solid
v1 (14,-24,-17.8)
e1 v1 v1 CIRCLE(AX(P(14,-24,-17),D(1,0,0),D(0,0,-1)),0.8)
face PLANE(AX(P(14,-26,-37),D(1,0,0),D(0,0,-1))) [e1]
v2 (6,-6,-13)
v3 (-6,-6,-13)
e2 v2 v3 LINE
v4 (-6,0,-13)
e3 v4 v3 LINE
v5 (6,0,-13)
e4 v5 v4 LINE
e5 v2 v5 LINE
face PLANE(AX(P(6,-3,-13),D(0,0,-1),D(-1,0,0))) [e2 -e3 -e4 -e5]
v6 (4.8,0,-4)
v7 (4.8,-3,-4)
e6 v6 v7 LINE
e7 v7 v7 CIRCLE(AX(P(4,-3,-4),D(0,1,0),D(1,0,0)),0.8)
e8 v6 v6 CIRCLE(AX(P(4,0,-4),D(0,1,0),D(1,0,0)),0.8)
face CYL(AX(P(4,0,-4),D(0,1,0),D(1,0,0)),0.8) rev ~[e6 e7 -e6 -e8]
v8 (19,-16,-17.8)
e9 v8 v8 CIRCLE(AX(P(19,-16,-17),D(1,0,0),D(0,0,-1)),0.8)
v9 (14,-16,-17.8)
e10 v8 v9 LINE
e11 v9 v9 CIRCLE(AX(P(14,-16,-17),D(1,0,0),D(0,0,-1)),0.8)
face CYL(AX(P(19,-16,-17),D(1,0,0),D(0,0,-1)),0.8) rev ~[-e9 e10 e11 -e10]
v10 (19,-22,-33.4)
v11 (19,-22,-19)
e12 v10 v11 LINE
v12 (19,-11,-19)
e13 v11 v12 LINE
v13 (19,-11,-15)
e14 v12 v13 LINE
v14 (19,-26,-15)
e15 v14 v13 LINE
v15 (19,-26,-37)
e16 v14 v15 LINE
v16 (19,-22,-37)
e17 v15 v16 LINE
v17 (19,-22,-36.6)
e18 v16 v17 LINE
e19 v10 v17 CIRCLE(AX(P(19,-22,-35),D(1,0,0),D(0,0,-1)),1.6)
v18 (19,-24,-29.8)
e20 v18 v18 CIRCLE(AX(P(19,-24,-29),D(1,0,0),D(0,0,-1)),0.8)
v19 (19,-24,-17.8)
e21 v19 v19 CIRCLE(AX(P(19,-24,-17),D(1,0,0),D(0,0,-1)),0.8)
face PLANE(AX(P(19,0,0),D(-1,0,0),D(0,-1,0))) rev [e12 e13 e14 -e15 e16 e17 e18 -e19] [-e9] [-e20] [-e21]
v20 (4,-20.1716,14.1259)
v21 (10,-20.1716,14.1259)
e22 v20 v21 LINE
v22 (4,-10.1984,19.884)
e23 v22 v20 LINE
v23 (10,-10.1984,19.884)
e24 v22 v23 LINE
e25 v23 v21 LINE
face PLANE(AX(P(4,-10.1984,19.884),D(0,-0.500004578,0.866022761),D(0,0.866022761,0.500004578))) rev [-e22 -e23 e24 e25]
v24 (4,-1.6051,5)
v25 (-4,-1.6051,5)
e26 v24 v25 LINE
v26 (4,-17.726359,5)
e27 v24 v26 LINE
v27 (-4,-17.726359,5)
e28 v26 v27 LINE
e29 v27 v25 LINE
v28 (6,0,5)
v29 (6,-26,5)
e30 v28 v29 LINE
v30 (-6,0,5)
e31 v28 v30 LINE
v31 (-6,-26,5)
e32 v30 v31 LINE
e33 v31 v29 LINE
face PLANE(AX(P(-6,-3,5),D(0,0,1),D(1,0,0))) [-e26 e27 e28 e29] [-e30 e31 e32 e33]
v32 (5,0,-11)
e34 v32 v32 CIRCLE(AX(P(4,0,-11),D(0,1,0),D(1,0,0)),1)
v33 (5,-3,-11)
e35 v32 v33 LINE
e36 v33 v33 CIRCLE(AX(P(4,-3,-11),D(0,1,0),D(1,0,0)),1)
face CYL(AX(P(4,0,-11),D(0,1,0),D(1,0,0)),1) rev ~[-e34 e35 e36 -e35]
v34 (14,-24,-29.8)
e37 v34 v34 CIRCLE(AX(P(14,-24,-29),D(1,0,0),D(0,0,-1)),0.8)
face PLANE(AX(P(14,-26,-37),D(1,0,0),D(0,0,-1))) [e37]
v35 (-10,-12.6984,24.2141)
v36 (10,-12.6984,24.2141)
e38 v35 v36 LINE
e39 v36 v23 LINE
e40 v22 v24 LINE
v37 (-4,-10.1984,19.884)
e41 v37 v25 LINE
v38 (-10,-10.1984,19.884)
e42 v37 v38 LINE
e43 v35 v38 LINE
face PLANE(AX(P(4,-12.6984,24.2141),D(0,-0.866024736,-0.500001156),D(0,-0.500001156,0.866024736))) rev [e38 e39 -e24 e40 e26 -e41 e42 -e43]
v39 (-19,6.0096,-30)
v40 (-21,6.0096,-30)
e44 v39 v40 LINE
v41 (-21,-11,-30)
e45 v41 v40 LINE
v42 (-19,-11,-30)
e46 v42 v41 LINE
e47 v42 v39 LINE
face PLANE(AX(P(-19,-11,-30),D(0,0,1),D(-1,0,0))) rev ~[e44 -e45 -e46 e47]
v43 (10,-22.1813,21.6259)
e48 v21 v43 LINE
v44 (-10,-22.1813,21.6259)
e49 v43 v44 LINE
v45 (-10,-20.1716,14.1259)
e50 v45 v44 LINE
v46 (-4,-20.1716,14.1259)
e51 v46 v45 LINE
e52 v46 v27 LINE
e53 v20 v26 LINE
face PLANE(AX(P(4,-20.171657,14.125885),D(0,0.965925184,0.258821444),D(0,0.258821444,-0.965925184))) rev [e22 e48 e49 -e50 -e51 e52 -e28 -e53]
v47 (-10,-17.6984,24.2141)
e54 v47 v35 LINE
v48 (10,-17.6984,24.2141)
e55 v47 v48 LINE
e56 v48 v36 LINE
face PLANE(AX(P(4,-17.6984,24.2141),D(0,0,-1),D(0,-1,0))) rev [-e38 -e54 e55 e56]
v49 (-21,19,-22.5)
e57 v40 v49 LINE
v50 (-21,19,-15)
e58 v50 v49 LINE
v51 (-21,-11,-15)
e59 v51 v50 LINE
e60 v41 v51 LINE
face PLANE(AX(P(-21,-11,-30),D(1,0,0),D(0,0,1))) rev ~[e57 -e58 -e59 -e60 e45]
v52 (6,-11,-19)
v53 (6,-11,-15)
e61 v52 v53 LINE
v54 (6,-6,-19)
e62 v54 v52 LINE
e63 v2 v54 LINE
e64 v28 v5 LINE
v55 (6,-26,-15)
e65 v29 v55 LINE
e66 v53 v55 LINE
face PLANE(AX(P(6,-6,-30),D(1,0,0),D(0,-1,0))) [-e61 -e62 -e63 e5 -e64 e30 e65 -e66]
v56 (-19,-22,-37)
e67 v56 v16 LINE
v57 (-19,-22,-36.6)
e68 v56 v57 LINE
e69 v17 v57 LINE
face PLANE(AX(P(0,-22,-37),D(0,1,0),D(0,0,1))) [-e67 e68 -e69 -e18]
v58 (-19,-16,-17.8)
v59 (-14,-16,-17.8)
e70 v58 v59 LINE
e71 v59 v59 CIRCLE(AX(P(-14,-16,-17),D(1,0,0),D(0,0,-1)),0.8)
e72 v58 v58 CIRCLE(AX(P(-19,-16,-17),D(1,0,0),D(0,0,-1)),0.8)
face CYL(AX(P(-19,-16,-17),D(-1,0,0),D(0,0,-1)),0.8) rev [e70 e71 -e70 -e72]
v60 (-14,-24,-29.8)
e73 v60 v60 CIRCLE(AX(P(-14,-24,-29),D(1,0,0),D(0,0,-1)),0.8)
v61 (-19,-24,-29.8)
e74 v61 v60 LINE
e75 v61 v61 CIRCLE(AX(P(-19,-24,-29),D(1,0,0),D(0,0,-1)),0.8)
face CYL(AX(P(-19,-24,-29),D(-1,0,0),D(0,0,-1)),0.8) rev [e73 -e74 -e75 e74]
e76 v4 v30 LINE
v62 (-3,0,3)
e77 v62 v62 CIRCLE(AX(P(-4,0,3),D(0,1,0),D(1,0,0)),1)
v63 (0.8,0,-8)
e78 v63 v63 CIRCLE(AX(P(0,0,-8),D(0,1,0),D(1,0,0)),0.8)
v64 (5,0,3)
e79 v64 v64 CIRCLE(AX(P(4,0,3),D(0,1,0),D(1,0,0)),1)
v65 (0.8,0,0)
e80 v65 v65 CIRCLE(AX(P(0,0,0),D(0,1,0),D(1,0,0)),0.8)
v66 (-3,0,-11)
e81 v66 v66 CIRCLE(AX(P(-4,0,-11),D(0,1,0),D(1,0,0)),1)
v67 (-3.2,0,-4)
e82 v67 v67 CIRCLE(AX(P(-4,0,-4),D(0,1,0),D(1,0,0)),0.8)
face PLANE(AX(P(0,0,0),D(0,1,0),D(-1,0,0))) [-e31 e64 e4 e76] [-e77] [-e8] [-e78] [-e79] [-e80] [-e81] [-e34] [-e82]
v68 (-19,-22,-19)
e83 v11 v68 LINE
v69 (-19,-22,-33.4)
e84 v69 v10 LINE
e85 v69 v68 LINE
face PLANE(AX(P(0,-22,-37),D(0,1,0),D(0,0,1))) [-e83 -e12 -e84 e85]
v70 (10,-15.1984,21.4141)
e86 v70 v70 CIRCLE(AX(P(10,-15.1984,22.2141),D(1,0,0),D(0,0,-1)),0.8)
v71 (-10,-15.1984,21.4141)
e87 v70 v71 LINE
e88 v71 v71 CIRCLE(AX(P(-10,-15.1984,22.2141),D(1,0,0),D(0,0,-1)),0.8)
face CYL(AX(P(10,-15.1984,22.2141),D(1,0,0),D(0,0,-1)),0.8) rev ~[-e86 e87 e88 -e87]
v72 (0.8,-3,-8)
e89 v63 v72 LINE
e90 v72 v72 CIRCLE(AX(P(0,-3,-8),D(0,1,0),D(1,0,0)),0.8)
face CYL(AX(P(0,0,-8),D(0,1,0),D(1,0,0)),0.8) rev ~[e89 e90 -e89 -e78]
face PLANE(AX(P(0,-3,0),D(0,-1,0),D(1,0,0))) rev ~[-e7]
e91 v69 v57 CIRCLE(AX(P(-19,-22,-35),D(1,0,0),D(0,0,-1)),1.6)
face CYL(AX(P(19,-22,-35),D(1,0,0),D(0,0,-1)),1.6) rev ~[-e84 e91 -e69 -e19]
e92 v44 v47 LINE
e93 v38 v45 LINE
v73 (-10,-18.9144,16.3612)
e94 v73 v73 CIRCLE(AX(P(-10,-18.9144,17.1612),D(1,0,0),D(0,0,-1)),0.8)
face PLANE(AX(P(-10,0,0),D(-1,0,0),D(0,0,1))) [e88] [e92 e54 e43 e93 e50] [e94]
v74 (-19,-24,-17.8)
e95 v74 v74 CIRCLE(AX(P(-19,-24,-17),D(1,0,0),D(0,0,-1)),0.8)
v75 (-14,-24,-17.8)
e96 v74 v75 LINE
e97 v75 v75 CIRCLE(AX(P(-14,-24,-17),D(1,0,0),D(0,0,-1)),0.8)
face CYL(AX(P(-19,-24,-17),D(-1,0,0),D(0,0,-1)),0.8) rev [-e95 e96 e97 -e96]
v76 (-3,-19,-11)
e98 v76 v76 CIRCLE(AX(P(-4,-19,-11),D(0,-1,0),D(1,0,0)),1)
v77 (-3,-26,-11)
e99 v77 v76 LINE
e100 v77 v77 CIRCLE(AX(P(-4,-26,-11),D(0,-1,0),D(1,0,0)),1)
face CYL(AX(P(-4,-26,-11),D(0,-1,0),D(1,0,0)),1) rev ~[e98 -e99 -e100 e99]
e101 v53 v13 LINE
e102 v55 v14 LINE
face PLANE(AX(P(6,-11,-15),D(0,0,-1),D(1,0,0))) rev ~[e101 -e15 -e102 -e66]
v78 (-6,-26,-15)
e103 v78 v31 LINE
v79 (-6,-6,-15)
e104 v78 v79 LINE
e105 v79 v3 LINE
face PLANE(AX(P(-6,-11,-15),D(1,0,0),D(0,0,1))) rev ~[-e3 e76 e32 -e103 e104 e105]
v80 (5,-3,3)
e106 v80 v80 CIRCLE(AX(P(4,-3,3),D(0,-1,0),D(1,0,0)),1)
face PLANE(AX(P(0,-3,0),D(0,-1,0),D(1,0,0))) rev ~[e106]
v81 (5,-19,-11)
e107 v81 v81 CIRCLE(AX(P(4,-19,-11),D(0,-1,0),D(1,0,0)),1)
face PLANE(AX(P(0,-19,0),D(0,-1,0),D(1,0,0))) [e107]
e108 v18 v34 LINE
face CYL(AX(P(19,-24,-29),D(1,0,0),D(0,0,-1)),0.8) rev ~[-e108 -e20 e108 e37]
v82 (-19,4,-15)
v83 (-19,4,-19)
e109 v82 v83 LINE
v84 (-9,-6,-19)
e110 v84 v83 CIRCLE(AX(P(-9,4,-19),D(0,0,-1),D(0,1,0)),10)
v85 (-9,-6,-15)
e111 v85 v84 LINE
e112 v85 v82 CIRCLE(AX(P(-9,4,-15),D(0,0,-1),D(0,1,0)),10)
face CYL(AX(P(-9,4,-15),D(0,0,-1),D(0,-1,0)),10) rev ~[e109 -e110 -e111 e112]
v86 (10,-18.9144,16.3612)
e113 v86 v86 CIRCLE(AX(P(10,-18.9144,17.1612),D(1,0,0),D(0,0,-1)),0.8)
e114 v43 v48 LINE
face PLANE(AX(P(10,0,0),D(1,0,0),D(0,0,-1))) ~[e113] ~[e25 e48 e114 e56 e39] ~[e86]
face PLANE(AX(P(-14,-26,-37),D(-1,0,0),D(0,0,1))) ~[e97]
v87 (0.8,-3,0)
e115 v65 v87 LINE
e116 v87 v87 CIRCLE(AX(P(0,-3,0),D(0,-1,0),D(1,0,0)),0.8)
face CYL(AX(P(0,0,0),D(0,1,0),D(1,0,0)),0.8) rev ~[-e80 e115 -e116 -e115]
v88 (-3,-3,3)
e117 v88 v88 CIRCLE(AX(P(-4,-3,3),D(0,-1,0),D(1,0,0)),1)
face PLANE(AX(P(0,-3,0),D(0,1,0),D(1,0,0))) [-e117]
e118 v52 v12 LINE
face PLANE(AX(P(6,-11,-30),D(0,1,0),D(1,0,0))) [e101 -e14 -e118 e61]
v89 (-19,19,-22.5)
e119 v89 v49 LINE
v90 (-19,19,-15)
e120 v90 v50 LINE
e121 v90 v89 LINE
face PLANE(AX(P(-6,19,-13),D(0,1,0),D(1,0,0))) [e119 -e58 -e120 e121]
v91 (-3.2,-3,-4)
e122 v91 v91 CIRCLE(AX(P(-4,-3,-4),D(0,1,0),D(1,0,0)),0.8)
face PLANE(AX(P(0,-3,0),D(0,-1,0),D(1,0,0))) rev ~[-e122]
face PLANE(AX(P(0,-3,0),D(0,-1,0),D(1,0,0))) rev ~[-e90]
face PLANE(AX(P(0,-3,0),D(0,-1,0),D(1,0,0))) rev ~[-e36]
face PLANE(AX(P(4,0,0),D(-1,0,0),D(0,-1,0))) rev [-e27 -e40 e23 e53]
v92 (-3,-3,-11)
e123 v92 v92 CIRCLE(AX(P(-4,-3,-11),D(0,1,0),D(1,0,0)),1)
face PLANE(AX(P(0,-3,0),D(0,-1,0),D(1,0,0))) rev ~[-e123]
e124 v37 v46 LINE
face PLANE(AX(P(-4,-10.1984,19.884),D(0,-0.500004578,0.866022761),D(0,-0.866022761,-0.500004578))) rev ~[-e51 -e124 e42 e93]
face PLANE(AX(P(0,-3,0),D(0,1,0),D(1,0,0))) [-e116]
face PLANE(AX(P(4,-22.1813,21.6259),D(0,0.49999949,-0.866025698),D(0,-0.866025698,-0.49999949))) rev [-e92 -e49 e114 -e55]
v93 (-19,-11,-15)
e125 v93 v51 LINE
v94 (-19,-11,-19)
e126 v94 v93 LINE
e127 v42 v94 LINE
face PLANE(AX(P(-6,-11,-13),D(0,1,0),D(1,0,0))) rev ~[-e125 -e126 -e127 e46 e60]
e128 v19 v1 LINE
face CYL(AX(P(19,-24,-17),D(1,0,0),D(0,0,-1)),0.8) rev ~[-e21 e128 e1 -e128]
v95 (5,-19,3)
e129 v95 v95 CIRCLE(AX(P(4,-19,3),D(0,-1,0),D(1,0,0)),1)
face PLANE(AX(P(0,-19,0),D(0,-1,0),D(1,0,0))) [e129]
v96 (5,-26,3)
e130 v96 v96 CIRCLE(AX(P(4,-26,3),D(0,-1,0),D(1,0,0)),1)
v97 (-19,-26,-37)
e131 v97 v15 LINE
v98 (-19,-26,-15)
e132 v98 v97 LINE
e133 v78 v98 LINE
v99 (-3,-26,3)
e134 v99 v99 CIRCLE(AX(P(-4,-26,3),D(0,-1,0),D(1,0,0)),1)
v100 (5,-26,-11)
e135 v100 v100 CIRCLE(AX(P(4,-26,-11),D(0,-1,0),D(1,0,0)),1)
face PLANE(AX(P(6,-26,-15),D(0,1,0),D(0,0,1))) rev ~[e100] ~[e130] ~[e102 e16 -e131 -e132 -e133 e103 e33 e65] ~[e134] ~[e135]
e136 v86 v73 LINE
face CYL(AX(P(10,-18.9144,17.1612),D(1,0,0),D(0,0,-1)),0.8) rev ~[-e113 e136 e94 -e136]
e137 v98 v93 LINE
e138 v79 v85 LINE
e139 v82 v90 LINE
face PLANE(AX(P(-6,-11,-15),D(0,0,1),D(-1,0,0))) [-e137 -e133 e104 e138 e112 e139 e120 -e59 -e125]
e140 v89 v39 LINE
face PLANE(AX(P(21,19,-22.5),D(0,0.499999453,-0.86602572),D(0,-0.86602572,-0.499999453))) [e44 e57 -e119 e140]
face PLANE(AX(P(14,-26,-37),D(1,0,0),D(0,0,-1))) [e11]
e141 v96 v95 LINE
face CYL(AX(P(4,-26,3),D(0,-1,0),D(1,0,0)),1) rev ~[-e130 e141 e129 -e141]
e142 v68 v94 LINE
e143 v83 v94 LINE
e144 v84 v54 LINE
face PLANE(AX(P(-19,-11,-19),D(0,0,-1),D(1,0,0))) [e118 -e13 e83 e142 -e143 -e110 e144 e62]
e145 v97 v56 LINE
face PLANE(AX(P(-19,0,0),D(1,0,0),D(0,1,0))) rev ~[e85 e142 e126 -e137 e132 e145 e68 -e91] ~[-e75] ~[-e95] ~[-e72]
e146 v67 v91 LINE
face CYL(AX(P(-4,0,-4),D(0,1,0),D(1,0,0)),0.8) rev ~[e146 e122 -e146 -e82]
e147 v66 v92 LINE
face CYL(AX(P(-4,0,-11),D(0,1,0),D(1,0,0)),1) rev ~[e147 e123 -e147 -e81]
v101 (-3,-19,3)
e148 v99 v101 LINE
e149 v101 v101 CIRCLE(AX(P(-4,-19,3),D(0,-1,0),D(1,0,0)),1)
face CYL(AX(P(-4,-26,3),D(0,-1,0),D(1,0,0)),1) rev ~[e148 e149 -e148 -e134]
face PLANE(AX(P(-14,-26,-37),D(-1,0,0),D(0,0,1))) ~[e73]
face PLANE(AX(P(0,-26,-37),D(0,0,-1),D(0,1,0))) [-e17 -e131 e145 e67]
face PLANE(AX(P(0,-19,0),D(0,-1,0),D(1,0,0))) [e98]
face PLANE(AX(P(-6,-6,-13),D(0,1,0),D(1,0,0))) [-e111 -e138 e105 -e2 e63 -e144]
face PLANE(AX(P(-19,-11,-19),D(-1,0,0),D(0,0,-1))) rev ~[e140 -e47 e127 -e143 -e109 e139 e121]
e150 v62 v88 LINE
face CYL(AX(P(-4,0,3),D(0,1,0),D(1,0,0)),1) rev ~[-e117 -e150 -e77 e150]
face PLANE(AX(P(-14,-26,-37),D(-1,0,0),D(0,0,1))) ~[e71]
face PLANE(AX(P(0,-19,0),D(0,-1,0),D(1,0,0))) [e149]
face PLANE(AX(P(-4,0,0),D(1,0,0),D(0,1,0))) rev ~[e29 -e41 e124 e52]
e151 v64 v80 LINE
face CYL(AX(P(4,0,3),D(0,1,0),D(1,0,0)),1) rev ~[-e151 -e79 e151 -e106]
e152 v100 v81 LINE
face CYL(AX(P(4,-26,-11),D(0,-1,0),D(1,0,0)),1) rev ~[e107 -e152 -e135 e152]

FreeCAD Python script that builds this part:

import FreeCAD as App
import Part
import Sketcher
from FreeCAD import Vector
Q = App.Units.Quantity


def edges_at(feature, points):
    """Names of the edges that pass closest to the given points."""
    edges = feature.Shape.Edges
    near = lambda p: min(range(len(edges)), key=lambda i: edges[i].distToShape(Part.Vertex(*p))[0])
    return sorted({f"Edge{near(p) + 1}" for p in points})


def add_polygon(sketch, points):
    """Adds a closed chain of lines whose ends are joined by coincident constraints."""
    first, n = sketch.GeometryCount, len(points)
    for a, b in zip(points, points[1:] + points[:1]):
        sketch.addGeometry(Part.LineSegment(App.Vector(*a, 0), App.Vector(*b, 0)), False)
    for i in range(n):
        sketch.addConstraint(Sketcher.Constraint("Coincident", first + i, 2, first + (i + 1) % n, 1))

doc = App.newDocument("Part")
body = doc.addObject("PartDesign::Body", "Body")
body.AllowCompound = True

sketch1 = body.newObject("Sketcher::SketchObject", "Sketch")
sketch1.AttachmentSupport = (doc.getObject("XZ_Plane"), [""])
sketch1.MapMode = "FlatFace"
add_polygon(sketch1, [(6, 5), (6, -13), (-6, -13), (-6, 5)])
sketch1.addConstraint(Sketcher.Constraint("Vertical", 0))
sketch1.addConstraint(Sketcher.Constraint("Horizontal", 1))
sketch1.addConstraint(Sketcher.Constraint("Vertical", 2))
sketch1.addConstraint(Sketcher.Constraint("Horizontal", 3))
sketch1.addConstraint(Sketcher.Constraint("DistanceX", 1, 2, 1, 1, Q("12 mm")))
sketch1.addConstraint(Sketcher.Constraint("DistanceY", 0, 2, 0, 1, Q("18 mm")))
sketch1.addConstraint(Sketcher.Constraint("DistanceX", -1, 1, 0, 2, Q("6 mm")))
sketch1.addConstraint(Sketcher.Constraint("DistanceY", 0, 2, -1, 1, Q("13 mm")))
pad1 = body.newObject("PartDesign::Pad", "Pad")
pad1.Profile = sketch1
pad1.Length = 3

sketch2 = body.newObject("Sketcher::SketchObject", "Sketch001")
sketch2.AttachmentSupport = (doc.getObject("YZ_Plane"), [""])
sketch2.MapMode = "FlatFace"
add_polygon(sketch2, [(-3, 0), (-3, 5), (-1.6051, 5), (-12.6984, 24.2141), (-17.6984, 24.2141), (-22.1813, 21.6259), (-16.3866, 0)])
sketch2.addConstraint(Sketcher.Constraint("Vertical", 0))
sketch2.addConstraint(Sketcher.Constraint("Horizontal", 1))
sketch2.addConstraint(Sketcher.Constraint("Horizontal", 3))
sketch2.addConstraint(Sketcher.Constraint("Horizontal", 6))
sketch2.addConstraint(Sketcher.Constraint("PointOnObject", 5, 2, -1))
sketch2.addConstraint(Sketcher.Constraint("Perpendicular", 2, 4))
sketch2.addConstraint(Sketcher.Constraint("Equal", 3, 0))
sketch2.addConstraint(Sketcher.Constraint("DistanceX", 3, 2, 3, 1, Q("5 mm")))
sketch2.addConstraint(Sketcher.Constraint("Angle", 2, Q("120 deg")))
sketch2.addConstraint(Sketcher.Constraint("Angle", 5, Q("-74.9999 deg")))
sketch2.addConstraint(Sketcher.Constraint("DistanceX", 0, 2, -1, 1, Q("3 mm")))
sketch2.addConstraint(Sketcher.Constraint("DistanceX", 1, 1, 1, 2, Q("1.395 mm")))
sketch2.addConstraint(Sketcher.Constraint("DistanceX", 6, 1, 6, 2, Q("13.3866 mm")))
sketch2.addConstraint(Sketcher.Constraint("DistanceY", -1, 1, 2, 2, Q("24.214 mm")))
pad2 = body.newObject("PartDesign::Pad", "Pad001")
pad2.Profile = sketch2
pad2.Length = 4
pad2.Reversed = True

sketch3 = body.newObject("Sketcher::SketchObject", "Sketch002")
sketch3.AttachmentSupport = (doc.getObject("YZ_Plane"), [""])
sketch3.MapMode = "FlatFace"
sketch3.AttachmentOffset = App.Placement(Vector(0, 0, -4), App.Rotation())
add_polygon(sketch3, [(-10.1984, 19.884), (-20.171657, 14.125885), (-22.1813, 21.6259), (-17.6984, 24.2141), (-12.6984, 24.2141)])
sketch3.addConstraint(Sketcher.Constraint("Horizontal", 3))
sketch3.addConstraint(Sketcher.Constraint("Parallel", 0, 2))
sketch3.addConstraint(Sketcher.Constraint("Perpendicular", 2, 4))
sketch3.addConstraint(Sketcher.Constraint("DistanceX", 3, 1, 3, 2, Q("5 mm")))
sketch3.addConstraint(Sketcher.Constraint("Distance", 4, Q("5 mm")))
sketch3.addConstraint(Sketcher.Constraint("Angle", 0, Q("-149.9997 deg")))
sketch3.addConstraint(Sketcher.Constraint("Angle", 1, Q("105.0001 deg")))
sketch3.addConstraint(Sketcher.Constraint("Distance", 0, Q("11.516 mm")))
sketch3.addConstraint(Sketcher.Constraint("DistanceY", -1, 1, 0, 2, Q("14.126 mm")))
sketch3.addConstraint(Sketcher.Constraint("DistanceX", 0, 2, -1, 1, Q("20.1716 mm")))
pad3 = body.newObject("PartDesign::Pad", "Pad002")
pad3.Profile = sketch3
pad3.Length = 6
pad3.Reversed = True
doc.recompute()

mirrored = body.newObject("PartDesign::Mirrored", "Mirrored")
mirrored.Originals = [pad2, pad3]
mirrored.MirrorPlane = (doc.getObject("YZ_Plane"), [""])
body.Tip = mirrored

sketch4 = body.newObject("Sketcher::SketchObject", "Sketch003")
sketch4.AttachmentSupport = (doc.getObject("XZ_Plane"), [""])
sketch4.MapMode = "FlatFace"
sketch4.addGeometry(Part.Circle(Vector(4, 3, 0), Vector(0, 0, 1), 1), False)
sketch4.addGeometry(Part.Circle(Vector(-4, -11, 0), Vector(0, 0, 1), 1), False)
sketch4.addGeometry(Part.Circle(Vector(0, 0, 0), Vector(0, 0, 1), 0.8), False)
sketch4.addGeometry(Part.Circle(Vector(0, -8, 0), Vector(0, 0, 1), 0.8), False)
sketch4.addGeometry(Part.Circle(Vector(-4, -4, 0), Vector(0, 0, 1), 0.8), False)
sketch4.addGeometry(Part.Circle(Vector(4, -4, 0), Vector(0, 0, 1), 0.8), False)
sketch4.addGeometry(Part.Circle(Vector(4, -11, 0), Vector(0, 0, 1), 1), False)
sketch4.addGeometry(Part.Circle(Vector(-4, 3, 0), Vector(0, 0, 1), 1), False)
sketch4.addConstraint(Sketcher.Constraint("Coincident", 2, 3, -1, 1))
sketch4.addConstraint(Sketcher.Constraint("Equal", 0, 1))
sketch4.addConstraint(Sketcher.Constraint("Equal", 2, 3))
sketch4.addConstraint(Sketcher.Constraint("Equal", 3, 4))
sketch4.addConstraint(Sketcher.Constraint("Equal", 4, 5))
sketch4.addConstraint(Sketcher.Constraint("Equal", 1, 6))
sketch4.addConstraint(Sketcher.Constraint("Equal", 6, 7))
sketch4.addConstraint(Sketcher.Constraint("Symmetric", 4, 3, 5, 3, -2))
sketch4.addConstraint(Sketcher.Constraint("Symmetric", 1, 3, 6, 3, -2))
sketch4.addConstraint(Sketcher.Constraint("Symmetric", 0, 3, 7, 3, -2))
sketch4.addConstraint(Sketcher.Constraint("PointOnObject", 3, 3, -2))
sketch4.addConstraint(Sketcher.Constraint("Vertical", 1, 3, 4, 3))
sketch4.addConstraint(Sketcher.Constraint("Vertical", 0, 3, 5, 3))
sketch4.addConstraint(Sketcher.Constraint("Diameter", 0, Q("2 mm")))
sketch4.addConstraint(Sketcher.Constraint("Diameter", 2, Q("1.6 mm")))
sketch4.addConstraint(Sketcher.Constraint("DistanceX", -1, 1, 0, 3, Q("4 mm")))
sketch4.addConstraint(Sketcher.Constraint("DistanceY", -1, 1, 0, 3, Q("3 mm")))
sketch4.addConstraint(Sketcher.Constraint("DistanceY", 1, 3, -1, 1, Q("11 mm")))
sketch4.addConstraint(Sketcher.Constraint("DistanceY", 3, 3, -1, 1, Q("8 mm")))
sketch4.addConstraint(Sketcher.Constraint("DistanceY", 4, 3, -1, 1, Q("4 mm")))
pocket1 = body.newObject("PartDesign::Pocket", "Pocket")
pocket1.Profile = sketch4
pocket1.Length = 3
pocket1.Reversed = True

sketch5 = body.newObject("Sketcher::SketchObject", "Sketch004")
sketch5.AttachmentSupport = (doc.getObject("XZ_Plane"), [""])
sketch5.MapMode = "FlatFace"
sketch5.AttachmentOffset = App.Placement(Vector(0, 0, 3), App.Rotation())
add_polygon(sketch5, [(6, 5), (-6, 5), (-6, -13), (6, -13)])
sketch5.addConstraint(Sketcher.Constraint("Horizontal", 0))
sketch5.addConstraint(Sketcher.Constraint("Vertical", 1))
sketch5.addConstraint(Sketcher.Constraint("Horizontal", 2))
sketch5.addConstraint(Sketcher.Constraint("Vertical", 3))
sketch5.addConstraint(Sketcher.Constraint("DistanceX", 0, 2, 0, 1, Q("12 mm")))
sketch5.addConstraint(Sketcher.Constraint("DistanceY", 1, 2, 1, 1, Q("18 mm")))
sketch5.addConstraint(Sketcher.Constraint("DistanceX", 0, 2, -1, 1, Q("6 mm")))
sketch5.addConstraint(Sketcher.Constraint("DistanceY", -1, 1, 0, 2, Q("5 mm")))
pad4 = body.newObject("PartDesign::Pad", "Pad003")
pad4.Profile = sketch5
pad4.Length = 23

sketch6 = body.newObject("Sketcher::SketchObject", "Sketch005")
sketch6.AttachmentSupport = (doc.getObject("XZ_Plane"), [""])
sketch6.MapMode = "FlatFace"
sketch6.AttachmentOffset = App.Placement(Vector(0, 0, 26), App.Rotation())
sketch6.addGeometry(Part.Circle(Vector(-4, 3, 0), Vector(0, 0, 1), 1), False)
sketch6.addGeometry(Part.Circle(Vector(4, 3, 0), Vector(0, 0, 1), 1), False)
sketch6.addGeometry(Part.Circle(Vector(4, -11, 0), Vector(0, 0, 1), 1), False)
sketch6.addGeometry(Part.Circle(Vector(-4, -11, 0), Vector(0, 0, 1), 1), False)
sketch6.addConstraint(Sketcher.Constraint("Equal", 0, 1))
sketch6.addConstraint(Sketcher.Constraint("Equal", 1, 2))
sketch6.addConstraint(Sketcher.Constraint("Equal", 2, 3))
sketch6.addConstraint(Sketcher.Constraint("Symmetric", 0, 3, 1, 3, -2))
sketch6.addConstraint(Sketcher.Constraint("Symmetric", 2, 3, 3, 3, -2))
sketch6.addConstraint(Sketcher.Constraint("Vertical", 1, 3, 2, 3))
sketch6.addConstraint(Sketcher.Constraint("Diameter", 0, Q("2 mm")))
sketch6.addConstraint(Sketcher.Constraint("DistanceX", 0, 3, -1, 1, Q("4 mm")))
sketch6.addConstraint(Sketcher.Constraint("DistanceY", -1, 1, 0, 3, Q("3 mm")))
sketch6.addConstraint(Sketcher.Constraint("DistanceY", 2, 3, -1, 1, Q("11 mm")))
pocket2 = body.newObject("PartDesign::Pocket", "Pocket001")
pocket2.Profile = sketch6
pocket2.Length = 7

sketch7 = body.newObject("Sketcher::SketchObject", "Sketch006")
sketch7.AttachmentSupport = (doc.getObject("YZ_Plane"), [""])
sketch7.MapMode = "FlatFace"
sketch7.AttachmentOffset = App.Placement(Vector(0, 0, 10), App.Rotation())
sketch7.addGeometry(Part.Circle(Vector(-15.1984, 22.2141, 0), Vector(0, 0, 1), 0.8), False)
sketch7.addGeometry(Part.Circle(Vector(-18.9144, 17.1612, 0), Vector(0, 0, 1), 0.8), False)
sketch7.addConstraint(Sketcher.Constraint("Equal", 0, 1))
sketch7.addConstraint(Sketcher.Constraint("Diameter", 0, Q("1.6 mm")))
sketch7.addConstraint(Sketcher.Constraint("DistanceY", -1, 1, 0, 3, Q("22.214 mm")))
sketch7.addConstraint(Sketcher.Constraint("DistanceX", 1, 3, 0, 3, Q("3.716 mm")))
sketch7.addConstraint(Sketcher.Constraint("DistanceY", 1, 3, 0, 3, Q("5.053 mm")))
sketch7.addConstraint(Sketcher.Constraint("DistanceX", 0, 3, -1, 1, Q("15.1984 mm")))
pocket3 = body.newObject("PartDesign::Pocket", "Pocket002")
pocket3.Profile = sketch7
pocket3.Type = "ThroughAll"

sketch8 = body.newObject("Sketcher::SketchObject", "Sketch007")
sketch8.AttachmentSupport = (doc.getObject("YZ_Plane"), [""])
sketch8.MapMode = "FlatFace"
sketch8.AttachmentOffset = App.Placement(Vector(0, 0, 6), App.Rotation())
add_polygon(sketch8, [(-11, -15), (-11, -13), (-26, -13), (-26, -15)])
sketch8.addConstraint(Sketcher.Constraint("Vertical", 0))
sketch8.addConstraint(Sketcher.Constraint("Horizontal", 1))
sketch8.addConstraint(Sketcher.Constraint("Vertical", 2))
sketch8.addConstraint(Sketcher.Constraint("Horizontal", 3))
sketch8.addConstraint(Sketcher.Constraint("DistanceX", 1, 2, 1, 1, Q("15 mm")))
sketch8.addConstraint(Sketcher.Constraint("DistanceY", 0, 1, 0, 2, Q("2 mm")))
sketch8.addConstraint(Sketcher.Constraint("DistanceY", 2, 2, -1, 1, Q("15 mm")))
sketch8.addConstraint(Sketcher.Constraint("DistanceX", 0, 2, -1, 1, Q("11 mm")))
pad5 = body.newObject("PartDesign::Pad", "Pad004")
pad5.Profile = sketch8
pad5.Length = 12
pad5.Reversed = True

sketch9 = body.newObject("Sketcher::SketchObject", "Sketch008")
sketch9.AttachmentSupport = (doc.getObject("YZ_Plane"), [""])
sketch9.MapMode = "FlatFace"
add_polygon(sketch9, [(-11, -15), (-26, -15), (-26, -37), (-22, -37), (-22, -19), (-11, -19)])
sketch9.addConstraint(Sketcher.Constraint("Horizontal", 0))
sketch9.addConstraint(Sketcher.Constraint("Vertical", 1))
sketch9.addConstraint(Sketcher.Constraint("Horizontal", 2))
sketch9.addConstraint(Sketcher.Constraint("Vertical", 3))
sketch9.addConstraint(Sketcher.Constraint("Horizontal", 4))
sketch9.addConstraint(Sketcher.Constraint("Vertical", 5))
sketch9.addConstraint(Sketcher.Constraint("Equal", 2, 5))
sketch9.addConstraint(Sketcher.Constraint("DistanceX", 2, 1, 2, 2, Q("4 mm")))
sketch9.addConstraint(Sketcher.Constraint("DistanceY", 3, 1, 3, 2, Q("18 mm")))
sketch9.addConstraint(Sketcher.Constraint("DistanceX", 0, 2, 0, 1, Q("15 mm")))
sketch9.addConstraint(Sketcher.Constraint("DistanceX", 0, 2, -1, 1, Q("26 mm")))
sketch9.addConstraint(Sketcher.Constraint("DistanceY", 0, 2, -1, 1, Q("15 mm")))
pad6 = body.newObject("PartDesign::Pad", "Pad005")
pad6.Profile = sketch9
pad6.Length = 19
pad6.Reversed = True
doc.recompute()

mirrored2 = body.newObject("PartDesign::Mirrored", "Mirrored001")
mirrored2.Originals = [pad6]
mirrored2.MirrorPlane = (doc.getObject("YZ_Plane"), [""])
body.Tip = mirrored2

sketch10 = body.newObject("Sketcher::SketchObject", "Sketch009")
sketch10.AttachmentSupport = (doc.getObject("XZ_Plane"), [""])
sketch10.MapMode = "FlatFace"
sketch10.AttachmentOffset = App.Placement(Vector(0, 0, 11), App.Rotation())
add_polygon(sketch10, [(-21, -30), (-21, -15), (-19, -15), (-19, -30)])
add_polygon(sketch10, [(19, -30), (19, -15), (21, -15), (21, -30)])
sketch10.addConstraint(Sketcher.Constraint("Vertical", 0))
sketch10.addConstraint(Sketcher.Constraint("Horizontal", 1))
sketch10.addConstraint(Sketcher.Constraint("Vertical", 2))
sketch10.addConstraint(Sketcher.Constraint("Horizontal", 3))
sketch10.addConstraint(Sketcher.Constraint("Vertical", 4))
sketch10.addConstraint(Sketcher.Constraint("Horizontal", 5))
sketch10.addConstraint(Sketcher.Constraint("Vertical", 6))
sketch10.addConstraint(Sketcher.Constraint("Horizontal", 7))
sketch10.addConstraint(Sketcher.Constraint("Symmetric", 1, 2, 4, 2, -2))
sketch10.addConstraint(Sketcher.Constraint("Symmetric", 3, 2, 6, 2, -2))
sketch10.addConstraint(Sketcher.Constraint("DistanceX", 1, 1, 1, 2, Q("2 mm")))
sketch10.addConstraint(Sketcher.Constraint("DistanceY", 0, 1, 0, 2, Q("15 mm")))
sketch10.addConstraint(Sketcher.Constraint("DistanceY", 0, 2, -1, 1, Q("15 mm")))
sketch10.addConstraint(Sketcher.Constraint("DistanceX", 0, 2, -1, 1, Q("21 mm")))
pad7 = body.newObject("PartDesign::Pad", "Pad006")
pad7.Profile = sketch10
pad7.Length = 30
pad7.Reversed = True

sketch11 = body.newObject("Sketcher::SketchObject", "Sketch010")
sketch11.AttachmentSupport = (doc.getObject("XZ_Plane"), [""])
sketch11.MapMode = "FlatFace"
sketch11.AttachmentOffset = App.Placement(Vector(0, 0, 11), App.Rotation())
add_polygon(sketch11, [(-19, -15), (-6, -15), (-6, -13), (6, -13), (6, -15), (19, -15), (19, -19), (-19, -19)])
sketch11.addConstraint(Sketcher.Constraint("Horizontal", 0))
sketch11.addConstraint(Sketcher.Constraint("Vertical", 1))
sketch11.addConstraint(Sketcher.Constraint("Horizontal", 2))
sketch11.addConstraint(Sketcher.Constraint("Vertical", 3))
sketch11.addConstraint(Sketcher.Constraint("Horizontal", 4))
sketch11.addConstraint(Sketcher.Constraint("Vertical", 5))
sketch11.addConstraint(Sketcher.Constraint("Horizontal", 6))
sketch11.addConstraint(Sketcher.Constraint("Vertical", 7))
sketch11.addConstraint(Sketcher.Constraint("Symmetric", 0, 2, 3, 2, -2))
sketch11.addConstraint(Sketcher.Constraint("Equal", 0, 4))
sketch11.addConstraint(Sketcher.Constraint("DistanceX", 0, 1, 0, 2, Q("13 mm")))
sketch11.addConstraint(Sketcher.Constraint("DistanceX", 2, 1, 2, 2, Q("12 mm")))
sketch11.addConstraint(Sketcher.Constraint("DistanceY", 1, 1, 1, 2, Q("2 mm")))
sketch11.addConstraint(Sketcher.Constraint("DistanceY", 5, 2, 5, 1, Q("4 mm")))
sketch11.addConstraint(Sketcher.Constraint("DistanceY", 0, 2, -1, 1, Q("15 mm")))
pad8 = body.newObject("PartDesign::Pad", "Pad007")
pad8.Profile = sketch11
pad8.Length = 5
pad8.Reversed = True
doc.recompute()

fillet = body.newObject("PartDesign::Fillet", "Fillet")
fillet.Base = (pad8, edges_at(pad8, [(-19, -6, -17), (19, -6, -17)]))
fillet.Radius = 10

sketch12 = body.newObject("Sketcher::SketchObject", "Sketch011")
sketch12.AttachmentSupport = (doc.getObject("YZ_Plane"), [""])
sketch12.MapMode = "FlatFace"
sketch12.AttachmentOffset = App.Placement(Vector(0, 0, 21), App.Rotation())
add_polygon(sketch12, [(6.0096, -30), (19, -30), (19, -22.5)])
sketch12.addConstraint(Sketcher.Constraint("Horizontal", 0))
sketch12.addConstraint(Sketcher.Constraint("Vertical", 1))
sketch12.addConstraint(Sketcher.Constraint("Angle", 2, Q("-150 deg")))
sketch12.addConstraint(Sketcher.Constraint("Distance", 2, Q("15 mm")))
sketch12.addConstraint(Sketcher.Constraint("DistanceX", -1, 1, 0, 2, Q("19 mm")))
sketch12.addConstraint(Sketcher.Constraint("DistanceY", 0, 2, -1, 1, Q("30 mm")))
pocket4 = body.newObject("PartDesign::Pocket", "Pocket003")
pocket4.Profile = sketch12
pocket4.Type = "ThroughAll"
pocket4.Midplane = True

sketch13 = body.newObject("Sketcher::SketchObject", "Sketch012")
sketch13.AttachmentSupport = (doc.getObject("YZ_Plane"), [""])
sketch13.MapMode = "FlatFace"
sketch13.AttachmentOffset = App.Placement(Vector(0, 0, 19), App.Rotation())
sketch13.addGeometry(Part.Circle(Vector(-22, -35, 0), Vector(0, 0, 1), 1.6), False)
sketch13.addConstraint(Sketcher.Constraint("Diameter", 0, Q("3.2 mm")))
sketch13.addConstraint(Sketcher.Constraint("DistanceX", 0, 3, -1, 1, Q("22 mm")))
sketch13.addConstraint(Sketcher.Constraint("DistanceY", 0, 3, -1, 1, Q("35 mm")))
pocket5 = body.newObject("PartDesign::Pocket", "Pocket004")
pocket5.Profile = sketch13
pocket5.Type = "ThroughAll"

sketch14 = body.newObject("Sketcher::SketchObject", "Sketch013")
sketch14.AttachmentSupport = (doc.getObject("YZ_Plane"), [""])
sketch14.MapMode = "FlatFace"
sketch14.AttachmentOffset = App.Placement(Vector(0, 0, 19), App.Rotation())
sketch14.addGeometry(Part.Circle(Vector(-16, -17, 0), Vector(0, 0, 1), 0.8), False)
sketch14.addGeometry(Part.Circle(Vector(-24, -17, 0), Vector(0, 0, 1), 0.8), False)
sketch14.addGeometry(Part.Circle(Vector(-24, -29, 0), Vector(0, 0, 1), 0.8), False)
sketch14.addConstraint(Sketcher.Constraint("Equal", 0, 1))
sketch14.addConstraint(Sketcher.Constraint("Equal", 1, 2))
sketch14.addConstraint(Sketcher.Constraint("Horizontal", 0, 3, 1, 3))
sketch14.addConstraint(Sketcher.Constraint("Vertical", 1, 3, 2, 3))
sketch14.addConstraint(Sketcher.Constraint("Diameter", 0, Q("1.6 mm")))
sketch14.addConstraint(Sketcher.Constraint("DistanceX", 1, 3, 0, 3, Q("8 mm")))
sketch14.addConstraint(Sketcher.Constraint("DistanceY", 2, 3, 1, 3, Q("12 mm")))
sketch14.addConstraint(Sketcher.Constraint("DistanceX", 0, 3, -1, 1, Q("16 mm")))
sketch14.addConstraint(Sketcher.Constraint("DistanceY", 0, 3, -1, 1, Q("17 mm")))
pocket6 = body.newObject("PartDesign::Pocket", "Pocket005")
pocket6.Profile = sketch14
pocket6.Length = 5
doc.recompute()

mirrored3 = body.newObject("PartDesign::Mirrored", "Mirrored002")
mirrored3.Originals = [pocket6]
mirrored3.MirrorPlane = (doc.getObject("YZ_Plane"), [""])
body.Tip = mirrored3

sketch15 = body.newObject("Sketcher::SketchObject", "Sketch014")
sketch15.AttachmentSupport = (doc.getObject("XY_Plane"), [""])
sketch15.MapMode = "FlatFace"
sketch15.AttachmentOffset = App.Placement(Vector(0, 0, -30), App.Rotation())
add_polygon(sketch15, [(41, -11), (6, -11), (6, 29), (41, 29)])
sketch15.addConstraint(Sketcher.Constraint("Horizontal", 0))
sketch15.addConstraint(Sketcher.Constraint("Vertical", 1))
sketch15.addConstraint(Sketcher.Constraint("Horizontal", 2))
sketch15.addConstraint(Sketcher.Constraint("Vertical", 3))
sketch15.addConstraint(Sketcher.Constraint("DistanceX", 0, 2, 0, 1, Q("35 mm")))
sketch15.addConstraint(Sketcher.Constraint("DistanceY", 1, 1, 1, 2, Q("40 mm")))
sketch15.addConstraint(Sketcher.Constraint("DistanceX", -1, 1, 0, 2, Q("6 mm")))
sketch15.addConstraint(Sketcher.Constraint("DistanceY", 0, 2, -1, 1, Q("11 mm")))
pocket7 = body.newObject("PartDesign::Pocket", "Pocket006")
pocket7.Profile = sketch15
pocket7.Length = 40
pocket7.Reversed = True

doc.recompute()
